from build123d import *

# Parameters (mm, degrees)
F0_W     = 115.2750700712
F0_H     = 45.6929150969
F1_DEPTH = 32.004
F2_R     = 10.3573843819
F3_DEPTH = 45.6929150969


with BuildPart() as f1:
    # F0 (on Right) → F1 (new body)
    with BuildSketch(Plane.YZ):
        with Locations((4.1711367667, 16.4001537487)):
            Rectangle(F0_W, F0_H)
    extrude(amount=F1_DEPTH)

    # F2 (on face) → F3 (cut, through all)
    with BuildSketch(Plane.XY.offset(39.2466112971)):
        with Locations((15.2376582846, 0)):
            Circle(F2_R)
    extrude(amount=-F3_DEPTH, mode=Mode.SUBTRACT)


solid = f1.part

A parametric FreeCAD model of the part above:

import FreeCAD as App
import Part
import Sketcher

V = App.Vector
Q = App.Units.Quantity


def add_polygon(sketch, points):
    """Adds a closed chain of lines whose ends are joined by coincident constraints."""
    first, n = sketch.GeometryCount, len(points)
    for a, b in zip(points, points[1:] + points[:1]):
        sketch.addGeometry(Part.LineSegment(App.Vector(*a, 0), App.Vector(*b, 0)), False)
    for i in range(n):
        sketch.addConstraint(Sketcher.Constraint("Coincident", first + i, 2, first + (i + 1) % n, 1))

doc = App.newDocument("Part")
body = doc.addObject("PartDesign::Body", "Body")

# Sketch on YZ plane
sketch1 = doc.addObject("Sketcher::SketchObject", "Sketch")
body.addObject(sketch1)
sketch1.AttachmentSupport = (doc.YZ_Plane, [""])
sketch1.MapMode = "FlatFace"
add_polygon(sketch1, [(-53, 39), (-53, -6), (62, -6), (62, 39)])  # lines 0-3
sketch1.addConstraint([
    Sketcher.Constraint("Vertical", 0),
    Sketcher.Constraint("Horizontal", 1),
    Sketcher.Constraint("Vertical", 2),
    Sketcher.Constraint("Horizontal", 3),
    Sketcher.Constraint("DistanceX", 1, 1, 1, 2, 115.27507),
    Sketcher.Constraint("DistanceX", 0, 2, -1, 1, 53.466398),
    Sketcher.Constraint("DistanceY", 0, 2, 0, 1, 45.692915),
    Sketcher.Constraint("DistanceY", -1, 1, 2, 2, 39.246611),
])
pad1 = doc.addObject("PartDesign::Pad", "Pad")
body.addObject(pad1)
pad1.Profile = sketch1
pad1.Length = Q("1.26 in")

# Sketch on XY plane
sketch2 = doc.addObject("Sketcher::SketchObject", "Sketch001")
body.addObject(sketch2)
sketch2.AttachmentSupport = (doc.XY_Plane, [""])
sketch2.MapMode = "FlatFace"
sketch2.AttachmentOffset = App.Placement(V(0, 0, 39.246611), App.Rotation())
sketch2.addGeometry(Part.Circle(V(15, 0, 0), V(0, 0, 1), 10), False)
sketch2.addConstraint([
    Sketcher.Constraint("PointOnObject", 0, 3, -1),
    Sketcher.Constraint("Diameter", 0, 20.714769),
    Sketcher.Constraint("DistanceX", -1, 1, 0, 3, 15.237658),
])
pocket1 = doc.addObject("PartDesign::Pocket", "Pocket")
body.addObject(pocket1)
pocket1.Profile = sketch2
pocket1.Type = "ThroughAll"

doc.recompute()
